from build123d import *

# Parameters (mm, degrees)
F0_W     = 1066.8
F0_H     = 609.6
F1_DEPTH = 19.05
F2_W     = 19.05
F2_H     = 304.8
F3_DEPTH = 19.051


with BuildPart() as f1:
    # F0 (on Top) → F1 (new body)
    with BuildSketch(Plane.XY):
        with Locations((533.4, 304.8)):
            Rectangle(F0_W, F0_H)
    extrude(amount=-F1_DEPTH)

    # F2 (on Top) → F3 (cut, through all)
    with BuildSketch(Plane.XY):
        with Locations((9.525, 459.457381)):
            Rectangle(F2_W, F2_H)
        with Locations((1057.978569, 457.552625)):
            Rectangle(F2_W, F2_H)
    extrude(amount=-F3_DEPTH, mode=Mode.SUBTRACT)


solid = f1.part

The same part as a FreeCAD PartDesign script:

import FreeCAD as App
import Part
import Sketcher
from FreeCAD import Vector
Q = App.Units.Quantity

doc = App.newDocument("Part")
body = doc.addObject("PartDesign::Body", "Body")

# Sketch on XY plane
sketch1 = body.newObject("Sketcher::SketchObject", "Sketch")
sketch1.AttachmentSupport = (doc.getObject("XY_Plane"), [""])
sketch1.MapMode = "FlatFace"
sketch1.addGeometry(Part.LineSegment(Vector(0, 610, 0), Vector(0, 0, 0)), False)
sketch1.addGeometry(Part.LineSegment(Vector(0, 0, 0), Vector(1067, 0, 0)), False)
sketch1.addGeometry(Part.LineSegment(Vector(1067, 0, 0), Vector(1067, 610, 0)), False)
sketch1.addGeometry(Part.LineSegment(Vector(1067, 610, 0), Vector(0, 610, 0)), False)
sketch1.addConstraint(Sketcher.Constraint("Coincident", 0, 2, 1, 1))
sketch1.addConstraint(Sketcher.Constraint("Coincident", 1, 2, 2, 1))
sketch1.addConstraint(Sketcher.Constraint("Coincident", 2, 2, 3, 1))
sketch1.addConstraint(Sketcher.Constraint("Coincident", 3, 2, 0, 1))
sketch1.addConstraint(Sketcher.Constraint("Vertical", 0))
sketch1.addConstraint(Sketcher.Constraint("Horizontal", 1))
sketch1.addConstraint(Sketcher.Constraint("Vertical", 2))
sketch1.addConstraint(Sketcher.Constraint("Horizontal", 3))
sketch1.addConstraint(Sketcher.Constraint("Coincident", 0, 2, -1, 1))
sketch1.addConstraint(Sketcher.Constraint("DistanceX", 1, 1, 1, 2, Q("42 in")))
sketch1.addConstraint(Sketcher.Constraint("DistanceY", 0, 2, 0, 1, Q("24 in")))
pad1 = body.newObject("PartDesign::Pad", "Pad")
pad1.Profile = sketch1
pad1.Length = Q("0.75 in")
pad1.Reversed = True

# Sketch on XY plane
sketch2 = body.newObject("Sketcher::SketchObject", "Sketch001")
sketch2.AttachmentSupport = (doc.getObject("XY_Plane"), [""])
sketch2.MapMode = "FlatFace"
sketch2.addGeometry(Part.LineSegment(Vector(0, 612, 0), Vector(0, 307, 0)), False)
sketch2.addGeometry(Part.LineSegment(Vector(0, 307, 0), Vector(19, 307, 0)), False)
sketch2.addGeometry(Part.LineSegment(Vector(19, 307, 0), Vector(19, 612, 0)), False)
sketch2.addGeometry(Part.LineSegment(Vector(19, 612, 0), Vector(0, 612, 0)), False)
sketch2.addGeometry(Part.LineSegment(Vector(1048, 610, 0), Vector(1048, 305, 0)), False)
sketch2.addGeometry(Part.LineSegment(Vector(1048, 305, 0), Vector(1068, 305, 0)), False)
sketch2.addGeometry(Part.LineSegment(Vector(1068, 305, 0), Vector(1068, 610, 0)), False)
sketch2.addGeometry(Part.LineSegment(Vector(1068, 610, 0), Vector(1048, 610, 0)), False)
sketch2.addConstraint(Sketcher.Constraint("Coincident", 0, 2, 1, 1))
sketch2.addConstraint(Sketcher.Constraint("Coincident", 1, 2, 2, 1))
sketch2.addConstraint(Sketcher.Constraint("Coincident", 2, 2, 3, 1))
sketch2.addConstraint(Sketcher.Constraint("Coincident", 3, 2, 0, 1))
sketch2.addConstraint(Sketcher.Constraint("Coincident", 4, 2, 5, 1))
sketch2.addConstraint(Sketcher.Constraint("Coincident", 5, 2, 6, 1))
sketch2.addConstraint(Sketcher.Constraint("Coincident", 6, 2, 7, 1))
sketch2.addConstraint(Sketcher.Constraint("Coincident", 7, 2, 4, 1))
sketch2.addConstraint(Sketcher.Constraint("Vertical", 0))
sketch2.addConstraint(Sketcher.Constraint("Horizontal", 1))
sketch2.addConstraint(Sketcher.Constraint("Vertical", 2))
sketch2.addConstraint(Sketcher.Constraint("Horizontal", 3))
sketch2.addConstraint(Sketcher.Constraint("Vertical", 4))
sketch2.addConstraint(Sketcher.Constraint("Horizontal", 5))
sketch2.addConstraint(Sketcher.Constraint("Vertical", 6))
sketch2.addConstraint(Sketcher.Constraint("Horizontal", 7))
sketch2.addConstraint(Sketcher.Constraint("PointOnObject", 0, 2, -2))
sketch2.addConstraint(Sketcher.Constraint("Equal", 3, 5))
sketch2.addConstraint(Sketcher.Constraint("Equal", 2, 4))
sketch2.addConstraint(Sketcher.Constraint("DistanceY", 0, 2, 0, 1, Q("12 in")))
sketch2.addConstraint(Sketcher.Constraint("DistanceX", 1, 1, 1, 2, Q("0.75 in")))
sketch2.addConstraint(Sketcher.Constraint("DistanceY", -1, 1, 0, 2, Q("307.057381 mm")))
sketch2.addConstraint(Sketcher.Constraint("DistanceX", -1, 1, 4, 2, Q("1048.453569 mm")))
sketch2.addConstraint(Sketcher.Constraint("DistanceY", -1, 1, 4, 2, Q("305.152625 mm")))
pocket1 = body.newObject("PartDesign::Pocket", "Pocket")
pocket1.Profile = sketch2
pocket1.Type = "ThroughAll"

doc.recompute()
